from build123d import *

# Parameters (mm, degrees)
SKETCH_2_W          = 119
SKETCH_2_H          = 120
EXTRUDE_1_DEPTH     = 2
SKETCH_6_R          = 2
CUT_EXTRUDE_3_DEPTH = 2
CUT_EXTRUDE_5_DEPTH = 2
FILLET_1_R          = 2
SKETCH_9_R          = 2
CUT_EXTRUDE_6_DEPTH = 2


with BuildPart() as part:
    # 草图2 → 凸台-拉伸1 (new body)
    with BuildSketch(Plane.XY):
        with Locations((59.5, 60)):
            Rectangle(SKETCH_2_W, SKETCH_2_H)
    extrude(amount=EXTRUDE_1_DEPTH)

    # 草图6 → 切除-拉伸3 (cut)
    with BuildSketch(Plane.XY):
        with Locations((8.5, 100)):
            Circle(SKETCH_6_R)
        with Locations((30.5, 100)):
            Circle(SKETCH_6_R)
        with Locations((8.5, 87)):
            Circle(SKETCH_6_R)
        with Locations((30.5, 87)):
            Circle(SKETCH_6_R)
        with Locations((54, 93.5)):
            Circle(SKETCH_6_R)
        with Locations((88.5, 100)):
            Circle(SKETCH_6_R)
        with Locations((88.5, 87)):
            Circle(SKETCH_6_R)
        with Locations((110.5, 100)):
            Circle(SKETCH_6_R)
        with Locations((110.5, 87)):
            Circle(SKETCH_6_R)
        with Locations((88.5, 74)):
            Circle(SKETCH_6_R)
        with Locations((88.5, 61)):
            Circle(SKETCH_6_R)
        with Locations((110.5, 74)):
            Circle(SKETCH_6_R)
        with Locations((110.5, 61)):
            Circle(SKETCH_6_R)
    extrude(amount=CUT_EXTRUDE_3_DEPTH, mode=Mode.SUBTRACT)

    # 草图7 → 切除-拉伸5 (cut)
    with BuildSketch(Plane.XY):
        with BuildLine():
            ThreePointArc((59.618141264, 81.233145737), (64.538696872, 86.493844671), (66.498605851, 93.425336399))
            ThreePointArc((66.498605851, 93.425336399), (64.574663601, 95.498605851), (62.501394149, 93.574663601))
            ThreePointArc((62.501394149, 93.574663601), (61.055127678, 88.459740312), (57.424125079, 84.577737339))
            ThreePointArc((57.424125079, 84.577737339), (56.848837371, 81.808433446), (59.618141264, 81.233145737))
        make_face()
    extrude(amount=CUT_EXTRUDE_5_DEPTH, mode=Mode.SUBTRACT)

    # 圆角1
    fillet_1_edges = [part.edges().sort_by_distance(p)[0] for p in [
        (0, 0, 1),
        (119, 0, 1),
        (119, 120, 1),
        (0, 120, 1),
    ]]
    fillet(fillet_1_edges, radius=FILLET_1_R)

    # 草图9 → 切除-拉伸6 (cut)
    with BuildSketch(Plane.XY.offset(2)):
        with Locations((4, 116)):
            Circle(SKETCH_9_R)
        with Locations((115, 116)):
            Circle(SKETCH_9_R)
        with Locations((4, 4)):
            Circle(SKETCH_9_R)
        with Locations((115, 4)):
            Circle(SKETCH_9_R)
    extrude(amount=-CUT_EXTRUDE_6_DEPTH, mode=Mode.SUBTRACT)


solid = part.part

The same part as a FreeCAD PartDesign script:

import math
import FreeCAD as App
import Part
import Sketcher

V = App.Vector


def edges_at(feature, points):
    """Names of the edges that pass closest to the given points."""
    edges = feature.Shape.Edges
    near = lambda p: min(range(len(edges)), key=lambda i: edges[i].distToShape(Part.Vertex(*p))[0])
    return sorted({f"Edge{near(p) + 1}" for p in points})

doc = App.newDocument("Part")
body = doc.addObject("PartDesign::Body", "Body")

sketch1 = doc.addObject("Sketcher::SketchObject", "Sketch")
body.addObject(sketch1)
sketch1.AttachmentSupport = (doc.XY_Plane, [""])
sketch1.MapMode = "FlatFace"
sketch1.addGeometry(Part.LineSegment(V(0, 120, 0), V(0, 0, 0)), False)
sketch1.addGeometry(Part.LineSegment(V(0, 0, 0), V(119, 0, 0)), False)
sketch1.addGeometry(Part.LineSegment(V(119, 0, 0), V(119, 120, 0)), False)
sketch1.addGeometry(Part.LineSegment(V(119, 120, 0), V(0, 120, 0)), False)
sketch1.addConstraint(Sketcher.Constraint("Coincident", 0, 2, 1, 1))
sketch1.addConstraint(Sketcher.Constraint("Coincident", 1, 2, 2, 1))
sketch1.addConstraint(Sketcher.Constraint("Coincident", 2, 2, 3, 1))
sketch1.addConstraint(Sketcher.Constraint("Coincident", 3, 2, 0, 1))
sketch1.addConstraint(Sketcher.Constraint("Vertical", 0))
sketch1.addConstraint(Sketcher.Constraint("Horizontal", 1))
sketch1.addConstraint(Sketcher.Constraint("Vertical", 2))
sketch1.addConstraint(Sketcher.Constraint("Horizontal", 3))
sketch1.addConstraint(Sketcher.Constraint("Coincident", 0, 2, -1, 1))
sketch1.addConstraint(Sketcher.Constraint("DistanceX", 1, 1, 1, 2, 119.0))
sketch1.addConstraint(Sketcher.Constraint("DistanceY", 0, 2, 0, 1, 120.0))
pad1 = doc.addObject("PartDesign::Pad", "Pad")
body.addObject(pad1)
pad1.Profile = sketch1
pad1.Length = 2

sketch2 = doc.addObject("Sketcher::SketchObject", "Sketch001")
body.addObject(sketch2)
sketch2.AttachmentSupport = (doc.XY_Plane, [""])
sketch2.MapMode = "FlatFace"
sketch2.addGeometry(Part.Circle(V(8.5, 100, 0), V(0, 0, 1), 2), False)
sketch2.addGeometry(Part.Circle(V(30.5, 100, 0), V(0, 0, 1), 2), False)
sketch2.addGeometry(Part.Circle(V(8.5, 87, 0), V(0, 0, 1), 2), False)
sketch2.addGeometry(Part.Circle(V(30.5, 87, 0), V(0, 0, 1), 2), False)
sketch2.addGeometry(Part.Circle(V(54, 93.5, 0), V(0, 0, 1), 2), False)
sketch2.addGeometry(Part.Circle(V(88.5, 100, 0), V(0, 0, 1), 2), False)
sketch2.addGeometry(Part.Circle(V(88.5, 87, 0), V(0, 0, 1), 2), False)
sketch2.addGeometry(Part.Circle(V(110.5, 100, 0), V(0, 0, 1), 2), False)
sketch2.addGeometry(Part.Circle(V(110.5, 87, 0), V(0, 0, 1), 2), False)
sketch2.addGeometry(Part.Circle(V(88.5, 74, 0), V(0, 0, 1), 2), False)
sketch2.addGeometry(Part.Circle(V(88.5, 61, 0), V(0, 0, 1), 2), False)
sketch2.addGeometry(Part.Circle(V(110.5, 74, 0), V(0, 0, 1), 2), False)
sketch2.addGeometry(Part.Circle(V(110.5, 61, 0), V(0, 0, 1), 2), False)
sketch2.addConstraint(Sketcher.Constraint("Equal", 0, 1))
sketch2.addConstraint(Sketcher.Constraint("Equal", 1, 2))
sketch2.addConstraint(Sketcher.Constraint("Equal", 2, 3))
sketch2.addConstraint(Sketcher.Constraint("Equal", 3, 4))
sketch2.addConstraint(Sketcher.Constraint("Equal", 4, 5))
sketch2.addConstraint(Sketcher.Constraint("Equal", 5, 6))
sketch2.addConstraint(Sketcher.Constraint("Equal", 6, 7))
sketch2.addConstraint(Sketcher.Constraint("Equal", 7, 8))
sketch2.addConstraint(Sketcher.Constraint("Equal", 8, 9))
sketch2.addConstraint(Sketcher.Constraint("Equal", 9, 10))
sketch2.addConstraint(Sketcher.Constraint("Equal", 10, 11))
sketch2.addConstraint(Sketcher.Constraint("Equal", 11, 12))
sketch2.addConstraint(Sketcher.Constraint("Horizontal", 0, 3, 1, 3))
sketch2.addConstraint(Sketcher.Constraint("Horizontal", 2, 3, 3, 3))
sketch2.addConstraint(Sketcher.Constraint("Horizontal", 1, 3, 5, 3))
sketch2.addConstraint(Sketcher.Constraint("Horizontal", 3, 3, 6, 3))
sketch2.addConstraint(Sketcher.Constraint("Horizontal", 5, 3, 7, 3))
sketch2.addConstraint(Sketcher.Constraint("Horizontal", 6, 3, 8, 3))
sketch2.addConstraint(Sketcher.Constraint("Horizontal", 9, 3, 11, 3))
sketch2.addConstraint(Sketcher.Constraint("Horizontal", 10, 3, 12, 3))
sketch2.addConstraint(Sketcher.Constraint("Vertical", 0, 3, 2, 3))
sketch2.addConstraint(Sketcher.Constraint("Vertical", 1, 3, 3, 3))
sketch2.addConstraint(Sketcher.Constraint("Vertical", 5, 3, 6, 3))
sketch2.addConstraint(Sketcher.Constraint("Vertical", 7, 3, 8, 3))
sketch2.addConstraint(Sketcher.Constraint("Vertical", 6, 3, 9, 3))
sketch2.addConstraint(Sketcher.Constraint("Vertical", 9, 3, 10, 3))
sketch2.addConstraint(Sketcher.Constraint("Vertical", 8, 3, 11, 3))
sketch2.addConstraint(Sketcher.Constraint("Vertical", 11, 3, 12, 3))
sketch2.addConstraint(Sketcher.Constraint("Diameter", 0, 4.0))
sketch2.addConstraint(Sketcher.Constraint("DistanceY", -1, 1, 0, 3, 100.0))
sketch2.addConstraint(Sketcher.Constraint("DistanceY", -1, 1, 2, 3, 87.0))
sketch2.addConstraint(Sketcher.Constraint("DistanceX", -1, 1, 4, 3, 54.0))
sketch2.addConstraint(Sketcher.Constraint("DistanceY", -1, 1, 9, 3, 74.0))
sketch2.addConstraint(Sketcher.Constraint("DistanceY", -1, 1, 10, 3, 61.0))
sketch2.addConstraint(Sketcher.Constraint("DistanceX", 0, 3, 1, 3, 22.0))
sketch2.addConstraint(Sketcher.Constraint("DistanceX", 1, 3, 5, 3, 58.0))
sketch2.addConstraint(Sketcher.Constraint("DistanceX", 5, 3, 7, 3, 22.0))
sketch2.addConstraint(Sketcher.Constraint("DistanceX", -1, 1, 0, 3, 8.5))
sketch2.addConstraint(Sketcher.Constraint("DistanceY", -1, 1, 4, 3, 93.5))
pocket1 = doc.addObject("PartDesign::Pocket", "Pocket")
body.addObject(pocket1)
pocket1.Profile = sketch2
pocket1.Length = 2
pocket1.Reversed = True

sketch3 = doc.addObject("Sketcher::SketchObject", "Sketch002")
body.addObject(sketch3)
sketch3.AttachmentSupport = (doc.XY_Plane, [""])
sketch3.MapMode = "FlatFace"
sketch3.addGeometry(Part.ArcOfCircle(Part.Circle(V(51.2, 94, 0), V(0, 0, 1), 15.3), math.radians(-57), math.radians(-2)), False)
sketch3.addGeometry(Part.ArcOfCircle(Part.Circle(V(64.5, 93.5, 0), V(0, 0, 1), 2), math.radians(-2), math.radians(178)), False)
sketch3.addGeometry(Part.ArcOfCircle(Part.Circle(V(51.2, 94, 0), V(0, 0, 1), 11.3), math.radians(-57), math.radians(-2)), False)
sketch3.addGeometry(Part.ArcOfCircle(Part.Circle(V(58.5, 82.9, 0), V(0, 0, 1), 2), math.radians(123), math.radians(303)), False)
sketch3.addConstraint(Sketcher.Constraint("Tangent", 0, 2, 1, 1))
sketch3.addConstraint(Sketcher.Constraint("Tangent", 1, 2, 2, 2))
sketch3.addConstraint(Sketcher.Constraint("Tangent", 2, 1, 3, 1))
sketch3.addConstraint(Sketcher.Constraint("Tangent", 3, 2, 0, 1))
sketch3.addConstraint(Sketcher.Constraint("Coincident", 2, 3, 0, 3))
sketch3.addConstraint(Sketcher.Constraint("Radius", 1, 2.0))
sketch3.addConstraint(Sketcher.Constraint("DistanceX", -1, 1, 1, 3, 64.5))
sketch3.addConstraint(Sketcher.Constraint("DistanceY", -1, 1, 1, 3, 93.5))
sketch3.addConstraint(Sketcher.Constraint("Radius", 0, 15.262825))
sketch3.addConstraint(Sketcher.Constraint("DistanceX", -1, 1, 0, 3, 51.24642))
sketch3.addConstraint(Sketcher.Constraint("DistanceY", -1, 1, 3, 3, 82.905442))
pocket2 = doc.addObject("PartDesign::Pocket", "Pocket001")
body.addObject(pocket2)
pocket2.Profile = sketch3
pocket2.Length = 2
pocket2.Reversed = True
doc.recompute()

fillet = doc.addObject("PartDesign::Fillet", "Fillet")
body.addObject(fillet)
fillet.Base = (pocket2, edges_at(pocket2, [
    (0, 0, 1),
    (119, 0, 1),
    (119, 120, 1),
    (0, 120, 1),
]))
fillet.Radius = 2

sketch4 = doc.addObject("Sketcher::SketchObject", "Sketch003")
body.addObject(sketch4)
sketch4.AttachmentSupport = (doc.XY_Plane, [""])
sketch4.MapMode = "FlatFace"
sketch4.AttachmentOffset = App.Placement(V(0, 0, 2), App.Rotation())
sketch4.addGeometry(Part.Circle(V(4, 116, 0), V(0, 0, 1), 2), False)
sketch4.addGeometry(Part.Circle(V(115, 116, 0), V(0, 0, 1), 2), False)
sketch4.addGeometry(Part.Circle(V(4, 4, 0), V(0, 0, 1), 2), False)
sketch4.addGeometry(Part.Circle(V(115, 4, 0), V(0, 0, 1), 2), False)
sketch4.addConstraint(Sketcher.Constraint("Equal", 0, 1))
sketch4.addConstraint(Sketcher.Constraint("Equal", 1, 2))
sketch4.addConstraint(Sketcher.Constraint("Equal", 2, 3))
sketch4.addConstraint(Sketcher.Constraint("Horizontal", 0, 3, 1, 3))
sketch4.addConstraint(Sketcher.Constraint("Horizontal", 2, 3, 3, 3))
sketch4.addConstraint(Sketcher.Constraint("Vertical", 0, 3, 2, 3))
sketch4.addConstraint(Sketcher.Constraint("Vertical", 1, 3, 3, 3))
sketch4.addConstraint(Sketcher.Constraint("Diameter", 0, 4.0))
sketch4.addConstraint(Sketcher.Constraint("DistanceX", -1, 1, 0, 3, 4.0))
sketch4.addConstraint(Sketcher.Constraint("DistanceY", -1, 1, 0, 3, 116.0))
sketch4.addConstraint(Sketcher.Constraint("DistanceX", -1, 1, 1, 3, 115.0))
sketch4.addConstraint(Sketcher.Constraint("DistanceY", -1, 1, 2, 3, 4.0))
pocket3 = doc.addObject("PartDesign::Pocket", "Pocket002")
body.addObject(pocket3)
pocket3.Profile = sketch4
pocket3.Length = 2

doc.recompute()
